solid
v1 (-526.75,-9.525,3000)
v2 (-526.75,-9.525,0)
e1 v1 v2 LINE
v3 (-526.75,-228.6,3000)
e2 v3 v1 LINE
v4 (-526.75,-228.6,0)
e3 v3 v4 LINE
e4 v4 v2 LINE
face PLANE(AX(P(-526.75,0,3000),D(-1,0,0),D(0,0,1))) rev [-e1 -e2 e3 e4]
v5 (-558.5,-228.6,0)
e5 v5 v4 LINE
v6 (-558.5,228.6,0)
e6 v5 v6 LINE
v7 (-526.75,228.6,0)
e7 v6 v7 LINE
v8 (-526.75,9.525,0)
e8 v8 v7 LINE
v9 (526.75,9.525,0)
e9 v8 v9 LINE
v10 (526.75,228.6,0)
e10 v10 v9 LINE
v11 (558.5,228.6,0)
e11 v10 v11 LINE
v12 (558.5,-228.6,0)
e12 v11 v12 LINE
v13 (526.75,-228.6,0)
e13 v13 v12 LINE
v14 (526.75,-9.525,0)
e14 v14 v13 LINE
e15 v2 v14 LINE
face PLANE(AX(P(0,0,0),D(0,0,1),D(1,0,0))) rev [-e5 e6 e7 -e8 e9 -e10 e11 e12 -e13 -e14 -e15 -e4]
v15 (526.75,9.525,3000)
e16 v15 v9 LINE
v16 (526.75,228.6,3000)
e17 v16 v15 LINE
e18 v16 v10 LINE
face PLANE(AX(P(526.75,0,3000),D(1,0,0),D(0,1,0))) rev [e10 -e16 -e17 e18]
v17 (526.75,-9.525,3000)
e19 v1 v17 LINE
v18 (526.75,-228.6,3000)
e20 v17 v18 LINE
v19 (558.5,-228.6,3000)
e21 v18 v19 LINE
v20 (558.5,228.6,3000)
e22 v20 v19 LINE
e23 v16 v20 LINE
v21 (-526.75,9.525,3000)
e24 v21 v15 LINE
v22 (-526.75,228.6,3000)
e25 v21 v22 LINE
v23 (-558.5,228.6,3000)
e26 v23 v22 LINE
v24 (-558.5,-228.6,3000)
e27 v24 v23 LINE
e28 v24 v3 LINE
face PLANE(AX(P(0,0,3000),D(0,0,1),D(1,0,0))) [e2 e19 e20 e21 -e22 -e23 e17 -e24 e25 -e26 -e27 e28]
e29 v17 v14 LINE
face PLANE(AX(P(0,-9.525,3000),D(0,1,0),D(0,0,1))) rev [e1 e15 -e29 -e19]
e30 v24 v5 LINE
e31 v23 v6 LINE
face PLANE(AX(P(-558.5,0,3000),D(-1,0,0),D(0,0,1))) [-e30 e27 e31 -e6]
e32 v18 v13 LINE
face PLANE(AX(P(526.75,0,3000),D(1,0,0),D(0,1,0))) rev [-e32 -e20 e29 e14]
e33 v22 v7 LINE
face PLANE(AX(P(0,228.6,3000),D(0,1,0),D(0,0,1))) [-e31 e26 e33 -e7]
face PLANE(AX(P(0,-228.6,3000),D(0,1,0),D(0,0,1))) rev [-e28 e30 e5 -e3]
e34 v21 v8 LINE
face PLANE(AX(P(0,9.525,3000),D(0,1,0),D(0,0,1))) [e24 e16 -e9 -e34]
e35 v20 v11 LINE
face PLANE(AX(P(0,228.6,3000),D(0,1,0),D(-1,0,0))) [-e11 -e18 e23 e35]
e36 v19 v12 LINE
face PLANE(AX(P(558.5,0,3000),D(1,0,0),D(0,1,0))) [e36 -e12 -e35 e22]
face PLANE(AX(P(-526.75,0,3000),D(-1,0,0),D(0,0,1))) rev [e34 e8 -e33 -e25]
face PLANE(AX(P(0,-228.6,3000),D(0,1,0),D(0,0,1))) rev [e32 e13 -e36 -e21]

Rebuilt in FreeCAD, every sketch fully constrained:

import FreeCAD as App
import Part
import Sketcher
from FreeCAD import Vector
Q = App.Units.Quantity

doc = App.newDocument("Part")
body = doc.addObject("PartDesign::Body", "Body")

# Sketch on XY plane
sketch1 = body.newObject("Sketcher::SketchObject", "Sketch")
sketch1.AttachmentSupport = (doc.getObject("XY_Plane"), [""])
sketch1.MapMode = "FlatFace"
sketch1.addGeometry([
    Part.LineSegment(Vector(-527, -229, 0), Vector(-527, -10, 0)),  # 0
    Part.LineSegment(Vector(-527, -10, 0), Vector(527, -10, 0)),  # 1
    Part.LineSegment(Vector(527, -10, 0), Vector(527, -229, 0)),  # 2
    Part.LineSegment(Vector(527, -229, 0), Vector(558, -229, 0)),  # 3
    Part.LineSegment(Vector(558, -229, 0), Vector(558, 229, 0)),  # 4
    Part.LineSegment(Vector(558, 229, 0), Vector(527, 229, 0)),  # 5
    Part.LineSegment(Vector(527, 229, 0), Vector(527, 10, 0)),  # 6
    Part.LineSegment(Vector(527, 10, 0), Vector(-527, 10, 0)),  # 7
    Part.LineSegment(Vector(-527, 10, 0), Vector(-527, 229, 0)),  # 8
    Part.LineSegment(Vector(-527, 229, 0), Vector(-558, 229, 0)),  # 9
    Part.LineSegment(Vector(-558, 229, 0), Vector(-558, -229, 0)),  # 10
    Part.LineSegment(Vector(-558, -229, 0), Vector(-527, -229, 0)),  # 11
], False)
sketch1.addConstraint([
    Sketcher.Constraint("Coincident", 0, 2, 1, 1),
    Sketcher.Constraint("Coincident", 1, 2, 2, 1),
    Sketcher.Constraint("Coincident", 2, 2, 3, 1),
    Sketcher.Constraint("Coincident", 3, 2, 4, 1),
    Sketcher.Constraint("Coincident", 4, 2, 5, 1),
    Sketcher.Constraint("Coincident", 5, 2, 6, 1),
    Sketcher.Constraint("Coincident", 6, 2, 7, 1),
    Sketcher.Constraint("Coincident", 7, 2, 8, 1),
    Sketcher.Constraint("Coincident", 8, 2, 9, 1),
    Sketcher.Constraint("Coincident", 9, 2, 10, 1),
    Sketcher.Constraint("Coincident", 10, 2, 11, 1),
    Sketcher.Constraint("Coincident", 11, 2, 0, 1),
    Sketcher.Constraint("Vertical", 0),
    Sketcher.Constraint("Horizontal", 1),
    Sketcher.Constraint("Vertical", 2),
    Sketcher.Constraint("Horizontal", 3),
    Sketcher.Constraint("Vertical", 4),
    Sketcher.Constraint("Horizontal", 5),
    Sketcher.Constraint("Vertical", 6),
    Sketcher.Constraint("Horizontal", 7),
    Sketcher.Constraint("Vertical", 8),
    Sketcher.Constraint("Horizontal", 9),
    Sketcher.Constraint("Vertical", 10),
    Sketcher.Constraint("Horizontal", 11),
    Sketcher.Constraint("Symmetric", 0, 2, 6, 2, -1, 1),
    Sketcher.Constraint("Symmetric", 2, 2, 8, 2, -1, 1),
    Sketcher.Constraint("Symmetric", 4, 2, 10, 2, -1, 1),
    Sketcher.Constraint("Symmetric", 5, 2, 8, 2, -2),
    Sketcher.Constraint("DistanceY", 4, 1, 4, 2, Q("18 in")),
    Sketcher.Constraint("DistanceX", 3, 1, 3, 2, Q("1.25 in")),
    Sketcher.Constraint("DistanceY", 0, 1, 0, 2, Q("8.625 in")),
    Sketcher.Constraint("DistanceX", 1, 1, 1, 2, 1053.5),
])
pad1 = body.newObject("PartDesign::Pad", "Pad")
pad1.Profile = sketch1
pad1.Length = 3000

doc.recompute()
